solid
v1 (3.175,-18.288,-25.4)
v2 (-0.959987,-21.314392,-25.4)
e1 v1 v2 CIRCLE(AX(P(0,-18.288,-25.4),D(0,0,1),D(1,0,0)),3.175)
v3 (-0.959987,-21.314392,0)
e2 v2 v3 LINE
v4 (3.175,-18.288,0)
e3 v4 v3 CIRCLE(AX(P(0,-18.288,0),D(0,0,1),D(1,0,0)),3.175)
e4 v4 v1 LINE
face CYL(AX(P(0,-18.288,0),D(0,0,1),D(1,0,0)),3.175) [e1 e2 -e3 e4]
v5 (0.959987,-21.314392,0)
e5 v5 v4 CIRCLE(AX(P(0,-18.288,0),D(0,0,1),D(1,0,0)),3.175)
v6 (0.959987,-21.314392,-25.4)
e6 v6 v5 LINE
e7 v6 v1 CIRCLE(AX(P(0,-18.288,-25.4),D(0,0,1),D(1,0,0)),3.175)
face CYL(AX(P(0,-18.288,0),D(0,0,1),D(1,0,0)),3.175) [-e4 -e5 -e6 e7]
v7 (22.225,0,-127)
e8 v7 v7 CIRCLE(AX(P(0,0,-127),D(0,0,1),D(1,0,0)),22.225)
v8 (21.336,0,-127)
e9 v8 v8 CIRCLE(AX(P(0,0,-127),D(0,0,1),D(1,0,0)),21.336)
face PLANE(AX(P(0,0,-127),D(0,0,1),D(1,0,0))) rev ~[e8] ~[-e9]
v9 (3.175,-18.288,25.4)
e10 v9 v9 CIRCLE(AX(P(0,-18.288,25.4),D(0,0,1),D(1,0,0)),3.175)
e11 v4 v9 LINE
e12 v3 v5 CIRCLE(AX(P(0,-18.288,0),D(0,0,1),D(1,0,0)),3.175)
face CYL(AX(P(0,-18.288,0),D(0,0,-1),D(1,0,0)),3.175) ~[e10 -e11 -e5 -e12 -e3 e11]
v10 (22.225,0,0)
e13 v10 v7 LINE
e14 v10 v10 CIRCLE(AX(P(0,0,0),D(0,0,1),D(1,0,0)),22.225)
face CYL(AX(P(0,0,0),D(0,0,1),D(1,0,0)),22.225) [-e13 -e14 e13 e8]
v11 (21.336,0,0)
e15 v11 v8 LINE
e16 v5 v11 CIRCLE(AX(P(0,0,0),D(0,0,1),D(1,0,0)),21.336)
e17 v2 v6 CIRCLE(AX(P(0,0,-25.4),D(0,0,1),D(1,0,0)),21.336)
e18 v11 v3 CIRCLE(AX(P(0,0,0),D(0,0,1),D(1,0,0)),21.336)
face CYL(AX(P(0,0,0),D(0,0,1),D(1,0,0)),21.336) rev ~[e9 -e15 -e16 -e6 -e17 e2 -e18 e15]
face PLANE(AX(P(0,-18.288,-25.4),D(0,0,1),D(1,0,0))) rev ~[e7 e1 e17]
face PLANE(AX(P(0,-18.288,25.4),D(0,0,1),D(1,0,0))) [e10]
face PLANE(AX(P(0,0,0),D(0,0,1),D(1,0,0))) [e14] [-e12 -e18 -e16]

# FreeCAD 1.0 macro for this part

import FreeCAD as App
import Part
import Sketcher
from FreeCAD import Vector
Q = App.Units.Quantity

doc = App.newDocument("Part")
body = doc.addObject("PartDesign::Body", "Body")

# Sketch on XY plane
sketch1 = body.newObject("Sketcher::SketchObject", "Sketch")
sketch1.AttachmentSupport = (doc.getObject("XY_Plane"), [""])
sketch1.MapMode = "FlatFace"
sketch1.addGeometry([
    Part.Circle(Vector(0, 0, 0), Vector(0, 0, 1), 22.225),
    Part.Circle(Vector(0, 0, 0), Vector(0, 0, 1), 21.336),
], False)
sketch1.addConstraint([
    Sketcher.Constraint("Coincident", 0, 3, -1, 1),
    Sketcher.Constraint("Coincident", 1, 3, -1, 1),
    Sketcher.Constraint("Diameter", 0, Q("1.75 in")),
    Sketcher.Constraint("Diameter", 1, Q("1.68 in")),
])
pad1 = body.newObject("PartDesign::Pad", "Pad")
pad1.Profile = sketch1
pad1.Length = Q("5 in")
pad1.Reversed = True

# Sketch on XY plane
sketch2 = body.newObject("Sketcher::SketchObject", "Sketch001")
sketch2.AttachmentSupport = (doc.getObject("XY_Plane"), [""])
sketch2.MapMode = "FlatFace"
sketch2.addGeometry(Part.Circle(Vector(0, -18.288, 0), Vector(0, 0, 1), 3.175), False)
sketch2.addConstraint([
    Sketcher.Constraint("PointOnObject", 0, 3, -2),
    Sketcher.Constraint("Diameter", 0, Q("0.25 in")),
    Sketcher.Constraint("DistanceY", 0, 3, -1, 1, Q("0.72 in")),
])
pad2 = body.newObject("PartDesign::Pad", "Pad001")
pad2.Profile = sketch2
pad2.Type = "TwoLengths"
pad2.Length = Q("1 in")
pad2.Length2 = Q("1 in")

doc.recompute()
